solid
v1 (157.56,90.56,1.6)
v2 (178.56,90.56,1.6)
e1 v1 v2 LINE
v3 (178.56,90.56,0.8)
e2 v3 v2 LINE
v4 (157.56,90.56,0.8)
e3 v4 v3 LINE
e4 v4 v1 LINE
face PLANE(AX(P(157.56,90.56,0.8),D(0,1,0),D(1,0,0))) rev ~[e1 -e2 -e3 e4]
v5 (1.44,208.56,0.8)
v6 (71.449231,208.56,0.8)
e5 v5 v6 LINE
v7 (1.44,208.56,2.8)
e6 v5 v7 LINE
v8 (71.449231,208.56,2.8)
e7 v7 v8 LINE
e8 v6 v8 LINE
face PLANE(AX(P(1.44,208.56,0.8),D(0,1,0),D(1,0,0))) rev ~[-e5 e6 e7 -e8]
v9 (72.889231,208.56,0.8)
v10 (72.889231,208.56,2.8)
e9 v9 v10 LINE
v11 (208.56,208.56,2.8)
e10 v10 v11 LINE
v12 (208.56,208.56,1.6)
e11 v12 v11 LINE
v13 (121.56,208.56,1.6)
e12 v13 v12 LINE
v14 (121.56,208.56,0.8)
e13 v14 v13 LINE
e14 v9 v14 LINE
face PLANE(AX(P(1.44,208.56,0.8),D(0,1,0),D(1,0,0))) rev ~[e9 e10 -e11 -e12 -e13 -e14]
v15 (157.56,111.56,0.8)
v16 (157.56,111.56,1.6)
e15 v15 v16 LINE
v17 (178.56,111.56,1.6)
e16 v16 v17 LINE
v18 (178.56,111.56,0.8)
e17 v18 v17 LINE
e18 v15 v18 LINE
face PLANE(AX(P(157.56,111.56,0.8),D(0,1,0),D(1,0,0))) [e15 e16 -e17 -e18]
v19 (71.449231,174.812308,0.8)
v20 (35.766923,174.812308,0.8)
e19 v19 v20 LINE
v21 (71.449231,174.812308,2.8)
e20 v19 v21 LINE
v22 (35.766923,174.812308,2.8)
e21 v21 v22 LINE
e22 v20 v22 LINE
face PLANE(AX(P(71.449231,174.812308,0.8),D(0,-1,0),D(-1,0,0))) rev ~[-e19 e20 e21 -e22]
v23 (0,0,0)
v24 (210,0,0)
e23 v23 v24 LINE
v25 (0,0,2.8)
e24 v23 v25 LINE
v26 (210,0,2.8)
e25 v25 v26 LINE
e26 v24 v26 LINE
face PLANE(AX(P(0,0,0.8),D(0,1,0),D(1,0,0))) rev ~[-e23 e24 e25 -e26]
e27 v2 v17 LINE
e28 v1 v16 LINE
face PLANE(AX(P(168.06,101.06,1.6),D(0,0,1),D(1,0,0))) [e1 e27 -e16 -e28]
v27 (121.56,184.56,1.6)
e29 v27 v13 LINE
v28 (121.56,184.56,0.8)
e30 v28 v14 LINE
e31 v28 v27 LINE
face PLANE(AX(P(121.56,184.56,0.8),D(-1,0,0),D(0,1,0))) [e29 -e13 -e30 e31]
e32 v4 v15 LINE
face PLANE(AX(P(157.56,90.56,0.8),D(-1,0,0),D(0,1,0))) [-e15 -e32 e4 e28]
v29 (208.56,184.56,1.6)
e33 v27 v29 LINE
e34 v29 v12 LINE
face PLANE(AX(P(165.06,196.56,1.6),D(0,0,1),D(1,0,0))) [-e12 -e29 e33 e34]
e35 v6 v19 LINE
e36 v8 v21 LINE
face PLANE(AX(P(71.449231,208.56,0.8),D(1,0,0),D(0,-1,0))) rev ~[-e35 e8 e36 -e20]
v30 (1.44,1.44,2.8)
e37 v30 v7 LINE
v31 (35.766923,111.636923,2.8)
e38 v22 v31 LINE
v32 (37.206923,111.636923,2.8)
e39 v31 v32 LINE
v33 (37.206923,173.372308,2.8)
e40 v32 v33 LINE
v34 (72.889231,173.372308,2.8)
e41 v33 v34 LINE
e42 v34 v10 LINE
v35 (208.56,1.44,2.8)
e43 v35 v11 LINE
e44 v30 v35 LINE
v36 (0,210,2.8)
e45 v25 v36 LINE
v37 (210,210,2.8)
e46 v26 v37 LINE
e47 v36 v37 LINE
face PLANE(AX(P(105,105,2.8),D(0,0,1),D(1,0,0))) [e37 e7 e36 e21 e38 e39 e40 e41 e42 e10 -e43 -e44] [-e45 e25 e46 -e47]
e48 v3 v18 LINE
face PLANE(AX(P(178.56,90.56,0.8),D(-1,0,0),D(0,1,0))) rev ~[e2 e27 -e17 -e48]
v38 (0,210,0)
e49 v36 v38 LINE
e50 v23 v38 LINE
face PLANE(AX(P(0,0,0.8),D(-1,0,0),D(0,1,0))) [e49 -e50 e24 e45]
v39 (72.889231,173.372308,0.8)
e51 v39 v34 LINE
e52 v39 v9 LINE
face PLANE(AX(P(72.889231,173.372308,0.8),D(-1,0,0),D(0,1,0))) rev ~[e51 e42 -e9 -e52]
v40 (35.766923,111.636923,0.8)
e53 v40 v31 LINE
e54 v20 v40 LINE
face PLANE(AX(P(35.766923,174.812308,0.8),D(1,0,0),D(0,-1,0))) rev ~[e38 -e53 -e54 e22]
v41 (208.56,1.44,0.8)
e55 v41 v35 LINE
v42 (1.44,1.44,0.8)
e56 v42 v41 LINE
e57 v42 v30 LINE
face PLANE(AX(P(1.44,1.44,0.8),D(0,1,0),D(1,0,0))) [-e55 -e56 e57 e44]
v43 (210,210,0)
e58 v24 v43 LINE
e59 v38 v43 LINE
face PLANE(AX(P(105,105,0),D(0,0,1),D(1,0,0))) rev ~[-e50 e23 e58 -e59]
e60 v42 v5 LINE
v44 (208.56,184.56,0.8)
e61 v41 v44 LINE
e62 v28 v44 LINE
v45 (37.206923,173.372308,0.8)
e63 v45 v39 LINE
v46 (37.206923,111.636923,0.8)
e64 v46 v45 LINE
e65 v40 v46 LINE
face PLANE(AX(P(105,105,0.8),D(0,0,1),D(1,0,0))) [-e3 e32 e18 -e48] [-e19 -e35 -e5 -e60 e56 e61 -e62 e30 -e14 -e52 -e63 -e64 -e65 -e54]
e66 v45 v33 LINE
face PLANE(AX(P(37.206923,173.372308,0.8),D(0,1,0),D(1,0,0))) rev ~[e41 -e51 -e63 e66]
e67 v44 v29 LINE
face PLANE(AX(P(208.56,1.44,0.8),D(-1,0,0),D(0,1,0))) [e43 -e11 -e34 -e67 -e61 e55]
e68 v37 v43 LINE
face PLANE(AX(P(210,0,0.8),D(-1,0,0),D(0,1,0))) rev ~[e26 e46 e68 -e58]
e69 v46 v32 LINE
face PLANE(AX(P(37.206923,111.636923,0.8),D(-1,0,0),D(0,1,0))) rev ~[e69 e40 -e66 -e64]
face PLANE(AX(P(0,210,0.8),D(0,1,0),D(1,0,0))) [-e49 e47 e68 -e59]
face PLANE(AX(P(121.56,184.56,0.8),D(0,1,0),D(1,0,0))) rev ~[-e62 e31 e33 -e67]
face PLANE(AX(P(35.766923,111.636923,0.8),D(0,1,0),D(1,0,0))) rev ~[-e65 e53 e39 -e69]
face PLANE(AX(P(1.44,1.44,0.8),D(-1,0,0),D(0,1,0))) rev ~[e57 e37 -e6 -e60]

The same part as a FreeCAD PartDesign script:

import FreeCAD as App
import Part
import Sketcher
from FreeCAD import Vector


def add_polygon(sketch, points):
    """Adds a closed chain of lines whose ends are joined by coincident constraints."""
    first, n = sketch.GeometryCount, len(points)
    for a, b in zip(points, points[1:] + points[:1]):
        sketch.addGeometry(Part.LineSegment(App.Vector(*a, 0), App.Vector(*b, 0)), False)
    for i in range(n):
        sketch.addConstraint(Sketcher.Constraint("Coincident", first + i, 2, first + (i + 1) % n, 1))

doc = App.newDocument("Part")
body = doc.addObject("PartDesign::Body", "Body")

# Sketch on XY plane
sketch1 = body.newObject("Sketcher::SketchObject", "Sketch")
sketch1.AttachmentSupport = (doc.getObject("XY_Plane"), [""])
sketch1.MapMode = "FlatFace"
add_polygon(sketch1, [(0, 210), (0, 0), (210, 0), (210, 210)])  # lines 0-3
sketch1.addConstraint([
    Sketcher.Constraint("Vertical", 0),
    Sketcher.Constraint("Horizontal", 1),
    Sketcher.Constraint("Vertical", 2),
    Sketcher.Constraint("Horizontal", 3),
    Sketcher.Constraint("Coincident", 0, 2, -1, 1),
    Sketcher.Constraint("Equal", 3, 0),
    Sketcher.Constraint("DistanceX", 1, 1, 1, 2, 210.0),
])
pad1 = body.newObject("PartDesign::Pad", "Pad")
pad1.Profile = sketch1
pad1.Length = 0.8

# Sketch on XY plane
sketch2 = body.newObject("Sketcher::SketchObject", "Sketch001")
sketch2.AttachmentSupport = (doc.getObject("XY_Plane"), [""])
sketch2.MapMode = "FlatFace"
sketch2.AttachmentOffset = App.Placement(Vector(0, 0, 0.8), App.Rotation())
add_polygon(sketch2, [(0, 210), (0, 0), (210, 0), (210, 210)])  # lines 0-3
add_polygon(sketch2, [(208.56, 1.44), (1.44, 1.44), (1.44, 208.56), (208.56, 208.56)])  # lines 4-7
sketch2.addConstraint([
    Sketcher.Constraint("Vertical", 0),
    Sketcher.Constraint("Horizontal", 1),
    Sketcher.Constraint("Vertical", 2),
    Sketcher.Constraint("Horizontal", 3),
    Sketcher.Constraint("Horizontal", 4),
    Sketcher.Constraint("Vertical", 5),
    Sketcher.Constraint("Horizontal", 6),
    Sketcher.Constraint("Vertical", 7),
    Sketcher.Constraint("Coincident", 0, 2, -1, 1),
    Sketcher.Constraint("Equal", 3, 0),
    Sketcher.Constraint("Equal", 6, 5),
    Sketcher.Constraint("DistanceX", 1, 1, 1, 2, 210.0),
    Sketcher.Constraint("DistanceX", 4, 2, 4, 1, 207.12),
    Sketcher.Constraint("DistanceX", -1, 1, 4, 2, 1.44),
    Sketcher.Constraint("DistanceY", -1, 1, 4, 2, 1.44),
])
pad2 = body.newObject("PartDesign::Pad", "Pad001")
pad2.Profile = sketch2
pad2.Length = 2

# Sketch on XY plane
sketch3 = body.newObject("Sketcher::SketchObject", "Sketch002")
sketch3.AttachmentSupport = (doc.getObject("XY_Plane"), [""])
sketch3.MapMode = "FlatFace"
sketch3.AttachmentOffset = App.Placement(Vector(0, 0, 0.8), App.Rotation())
add_polygon(sketch3, [(72.889231, 173.372308), (72.889231, 208.56), (71.449231, 208.56), (71.449231, 174.812308), (35.766923, 174.812308), (35.766923, 111.636923), (37.206923, 111.636923), (37.206923, 173.372308)])  # lines 0-7
sketch3.addConstraint([
    Sketcher.Constraint("Vertical", 0),
    Sketcher.Constraint("Horizontal", 1),
    Sketcher.Constraint("Vertical", 2),
    Sketcher.Constraint("Horizontal", 3),
    Sketcher.Constraint("Vertical", 4),
    Sketcher.Constraint("Horizontal", 5),
    Sketcher.Constraint("Vertical", 6),
    Sketcher.Constraint("Horizontal", 7),
    Sketcher.Constraint("Equal", 1, 5),
    Sketcher.Constraint("DistanceX", 1, 2, 1, 1, 1.44),
    Sketcher.Constraint("DistanceY", -1, 1, 0, 2, 208.56),
    Sketcher.Constraint("DistanceY", 6, 2, 3, 2, 1.44),
    Sketcher.Constraint("DistanceY", 0, 1, 0, 2, 35.187692),
    Sketcher.Constraint("DistanceX", 3, 2, 3, 1, 35.682308),
    Sketcher.Constraint("DistanceY", 4, 2, 4, 1, 63.175385),
    Sketcher.Constraint("DistanceX", -1, 1, 0, 2, 72.889231),
])
pad3 = body.newObject("PartDesign::Pad", "Pad002")
pad3.Profile = sketch3
pad3.Length = 2

# Sketch on XY plane
sketch4 = body.newObject("Sketcher::SketchObject", "Sketch003")
sketch4.AttachmentSupport = (doc.getObject("XY_Plane"), [""])
sketch4.MapMode = "FlatFace"
sketch4.AttachmentOffset = App.Placement(Vector(0, 0, 0.8), App.Rotation())
add_polygon(sketch4, [(121.56, 208.56), (121.56, 184.56), (208.56, 184.56), (208.56, 208.56)])  # lines 0-3
add_polygon(sketch4, [(157.56, 111.56), (157.56, 90.56), (178.56, 90.56), (178.56, 111.56)])  # lines 4-7
sketch4.addConstraint([
    Sketcher.Constraint("Vertical", 0),
    Sketcher.Constraint("Horizontal", 1),
    Sketcher.Constraint("Vertical", 2),
    Sketcher.Constraint("Horizontal", 3),
    Sketcher.Constraint("Vertical", 4),
    Sketcher.Constraint("Horizontal", 5),
    Sketcher.Constraint("Vertical", 6),
    Sketcher.Constraint("Horizontal", 7),
    Sketcher.Constraint("Equal", 7, 4),
    Sketcher.Constraint("DistanceX", 1, 1, 1, 2, 87.0),
    Sketcher.Constraint("DistanceX", 5, 1, 5, 2, 21.0),
    Sketcher.Constraint("DistanceY", 0, 2, 0, 1, 24.0),
    Sketcher.Constraint("DistanceX", 0, 2, 4, 2, 36.0),
    Sketcher.Constraint("DistanceY", 4, 2, 0, 2, 94.0),
    Sketcher.Constraint("DistanceX", -1, 1, 0, 2, 121.56),
    Sketcher.Constraint("DistanceY", -1, 1, 0, 2, 184.56),
])
pad4 = body.newObject("PartDesign::Pad", "Pad003")
pad4.Profile = sketch4
pad4.Length = 0.8

doc.recompute()
